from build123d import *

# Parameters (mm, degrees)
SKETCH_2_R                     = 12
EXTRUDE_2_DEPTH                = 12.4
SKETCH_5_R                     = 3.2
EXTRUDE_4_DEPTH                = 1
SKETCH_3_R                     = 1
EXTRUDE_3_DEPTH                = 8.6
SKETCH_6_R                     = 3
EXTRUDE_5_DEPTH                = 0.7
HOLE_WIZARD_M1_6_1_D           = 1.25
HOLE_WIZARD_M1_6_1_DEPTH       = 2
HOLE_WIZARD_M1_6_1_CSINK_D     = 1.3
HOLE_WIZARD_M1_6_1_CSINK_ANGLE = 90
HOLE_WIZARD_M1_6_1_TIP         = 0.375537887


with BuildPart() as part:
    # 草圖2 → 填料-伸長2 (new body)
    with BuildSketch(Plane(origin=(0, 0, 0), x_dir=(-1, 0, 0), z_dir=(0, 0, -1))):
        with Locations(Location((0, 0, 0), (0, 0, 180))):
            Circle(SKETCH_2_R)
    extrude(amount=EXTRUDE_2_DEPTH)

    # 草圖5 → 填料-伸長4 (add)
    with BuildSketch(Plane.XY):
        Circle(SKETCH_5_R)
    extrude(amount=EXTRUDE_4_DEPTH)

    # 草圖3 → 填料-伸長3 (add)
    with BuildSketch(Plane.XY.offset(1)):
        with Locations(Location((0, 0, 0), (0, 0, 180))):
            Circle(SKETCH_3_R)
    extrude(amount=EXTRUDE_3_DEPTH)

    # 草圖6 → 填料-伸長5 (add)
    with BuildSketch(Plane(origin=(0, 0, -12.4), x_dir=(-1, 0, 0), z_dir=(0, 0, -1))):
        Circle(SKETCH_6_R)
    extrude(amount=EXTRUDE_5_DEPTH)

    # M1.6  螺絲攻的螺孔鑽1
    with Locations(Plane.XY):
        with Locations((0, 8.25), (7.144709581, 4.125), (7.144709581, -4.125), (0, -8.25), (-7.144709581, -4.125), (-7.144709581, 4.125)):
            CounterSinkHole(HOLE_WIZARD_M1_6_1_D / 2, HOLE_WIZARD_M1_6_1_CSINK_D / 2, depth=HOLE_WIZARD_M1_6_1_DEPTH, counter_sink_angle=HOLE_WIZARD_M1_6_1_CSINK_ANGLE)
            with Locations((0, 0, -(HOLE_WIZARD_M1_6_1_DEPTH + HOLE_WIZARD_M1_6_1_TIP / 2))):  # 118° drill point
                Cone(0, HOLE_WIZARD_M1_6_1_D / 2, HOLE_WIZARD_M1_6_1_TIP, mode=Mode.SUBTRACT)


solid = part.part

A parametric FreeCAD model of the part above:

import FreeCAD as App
import Part
import Sketcher

V = App.Vector

doc = App.newDocument("Part")
body = doc.addObject("PartDesign::Body", "Body")

# Sketch on XY plane
sketch1 = body.newObject("Sketcher::SketchObject", "Sketch")
sketch1.AttachmentSupport = (doc.getObject("XY_Plane"), [""])
sketch1.MapMode = "FlatFace"
sketch1.addGeometry(Part.Circle(V(0, 0, 0), V(0, 0, 1), 12), False)
sketch1.addConstraint(Sketcher.Constraint("Coincident", 0, 3, -1, 1))
sketch1.addConstraint(Sketcher.Constraint("Diameter", 0, 24.0))
pad1 = body.newObject("PartDesign::Pad", "Pad")
pad1.Profile = sketch1
pad1.Length = 12.4
pad1.Reversed = True

# Sketch on XY plane
sketch2 = body.newObject("Sketcher::SketchObject", "Sketch001")
sketch2.AttachmentSupport = (doc.getObject("XY_Plane"), [""])
sketch2.MapMode = "FlatFace"
sketch2.addGeometry(Part.Circle(V(0, 0, 0), V(0, 0, 1), 3.2), False)
sketch2.addConstraint(Sketcher.Constraint("Coincident", 0, 3, -1, 1))
sketch2.addConstraint(Sketcher.Constraint("Diameter", 0, 6.4))
pad2 = body.newObject("PartDesign::Pad", "Pad001")
pad2.Profile = sketch2
pad2.Length = 1

# Sketch on XY plane
sketch3 = body.newObject("Sketcher::SketchObject", "Sketch002")
sketch3.AttachmentSupport = (doc.getObject("XY_Plane"), [""])
sketch3.MapMode = "FlatFace"
sketch3.AttachmentOffset = App.Placement(V(0, 0, 1), App.Rotation())
sketch3.addGeometry(Part.Circle(V(0, 0, 0), V(0, 0, 1), 1), False)
sketch3.addConstraint(Sketcher.Constraint("Coincident", 0, 3, -1, 1))
sketch3.addConstraint(Sketcher.Constraint("Diameter", 0, 2.0))
pad3 = body.newObject("PartDesign::Pad", "Pad002")
pad3.Profile = sketch3
pad3.Length = 8.6

# Sketch on XY plane
sketch4 = body.newObject("Sketcher::SketchObject", "Sketch003")
sketch4.AttachmentSupport = (doc.getObject("XY_Plane"), [""])
sketch4.MapMode = "FlatFace"
sketch4.AttachmentOffset = App.Placement(V(0, 0, -12.4), App.Rotation())
sketch4.addGeometry(Part.Circle(V(0, 0, 0), V(0, 0, 1), 3), False)
sketch4.addConstraint(Sketcher.Constraint("Coincident", 0, 3, -1, 1))
sketch4.addConstraint(Sketcher.Constraint("Diameter", 0, 6.0))
pad4 = body.newObject("PartDesign::Pad", "Pad003")
pad4.Profile = sketch4
pad4.Length = 0.7
pad4.Reversed = True

# Sketch on XY plane
sketch5 = body.newObject("Sketcher::SketchObject", "Sketch004")
sketch5.AttachmentSupport = (doc.getObject("XY_Plane"), [""])
sketch5.MapMode = "FlatFace"
sketch5.addGeometry(Part.Circle(V(0, 8.25, 0), V(0, 0, 1), 0.625), False)
sketch5.addGeometry(Part.Circle(V(7.14471, 4.125, 0), V(0, 0, 1), 0.625), False)
sketch5.addGeometry(Part.Circle(V(7.14471, -4.125, 0), V(0, 0, 1), 0.625), False)
sketch5.addGeometry(Part.Circle(V(0, -8.25, 0), V(0, 0, 1), 0.625), False)
sketch5.addGeometry(Part.Circle(V(-7.14471, -4.125, 0), V(0, 0, 1), 0.625), False)
sketch5.addGeometry(Part.Circle(V(-7.14471, 4.125, 0), V(0, 0, 1), 0.625), False)
sketch5.addConstraint(Sketcher.Constraint("Equal", 0, 1))
sketch5.addConstraint(Sketcher.Constraint("Equal", 1, 2))
sketch5.addConstraint(Sketcher.Constraint("Equal", 2, 3))
sketch5.addConstraint(Sketcher.Constraint("Equal", 3, 4))
sketch5.addConstraint(Sketcher.Constraint("Equal", 4, 5))
sketch5.addConstraint(Sketcher.Constraint("Symmetric", 0, 3, 3, 3, -1, 1))
sketch5.addConstraint(Sketcher.Constraint("Symmetric", 1, 3, 4, 3, -1, 1))
sketch5.addConstraint(Sketcher.Constraint("Symmetric", 2, 3, 5, 3, -1, 1))
sketch5.addConstraint(Sketcher.Constraint("Symmetric", 2, 3, 4, 3, -2))
sketch5.addConstraint(Sketcher.Constraint("PointOnObject", 0, 3, -2))
sketch5.addConstraint(Sketcher.Constraint("Diameter", 0, 1.25))
sketch5.addConstraint(Sketcher.Constraint("DistanceY", 3, 3, 0, 3, 16.5))
sketch5.addConstraint(Sketcher.Constraint("DistanceY", 2, 3, 1, 3, 8.25))
sketch5.addConstraint(Sketcher.Constraint("DistanceX", -1, 1, 1, 3, 7.14471))
doc.recompute()
hole = body.newObject("PartDesign::Hole", "Hole")
hole.Profile = sketch5
hole.ThreadType = "None"
hole.Diameter = 1.25
hole.DepthType = "Dimension"
hole.Depth = 2
hole.DrillPoint = "Angled"
hole.DrillPointAngle = 118
hole.HoleCutType = "Countersink"
hole.HoleCutDiameter = 1.3
hole.HoleCutCountersinkAngle = 90

doc.recompute()
